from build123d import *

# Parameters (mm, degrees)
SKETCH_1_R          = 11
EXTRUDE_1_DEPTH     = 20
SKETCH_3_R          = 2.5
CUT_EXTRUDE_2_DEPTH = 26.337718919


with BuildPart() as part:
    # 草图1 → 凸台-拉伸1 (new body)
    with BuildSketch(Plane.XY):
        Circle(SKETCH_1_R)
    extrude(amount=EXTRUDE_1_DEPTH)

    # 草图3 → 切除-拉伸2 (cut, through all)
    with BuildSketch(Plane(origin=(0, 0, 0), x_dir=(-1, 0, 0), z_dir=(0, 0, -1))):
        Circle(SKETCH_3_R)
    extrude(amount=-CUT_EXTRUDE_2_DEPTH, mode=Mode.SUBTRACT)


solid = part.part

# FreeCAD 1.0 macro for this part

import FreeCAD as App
import Part
import Sketcher

V = App.Vector
Q = App.Units.Quantity

doc = App.newDocument("Part")
body = doc.addObject("PartDesign::Body", "Body")

# Sketch on XY plane
sketch1 = doc.addObject("Sketcher::SketchObject", "Sketch")
body.addObject(sketch1)
sketch1.AttachmentSupport = (doc.XY_Plane, [""])
sketch1.MapMode = "FlatFace"
sketch1.addGeometry(Part.Circle(V(0, 0, 0), V(0, 0, 1), 11), False)
sketch1.addConstraint([
    Sketcher.Constraint("Coincident", 0, 3, -1, 1),
    Sketcher.Constraint("Diameter", 0, Q("22 mm")),
])
pad1 = doc.addObject("PartDesign::Pad", "Pad")
body.addObject(pad1)
pad1.Profile = sketch1
pad1.Length = 20

# Sketch on XY plane
sketch2 = doc.addObject("Sketcher::SketchObject", "Sketch001")
body.addObject(sketch2)
sketch2.AttachmentSupport = (doc.XY_Plane, [""])
sketch2.MapMode = "FlatFace"
sketch2.addGeometry(Part.Circle(V(0, 0, 0), V(0, 0, 1), 2.5), False)
sketch2.addConstraint([
    Sketcher.Constraint("Coincident", 0, 3, -1, 1),
    Sketcher.Constraint("Diameter", 0, Q("5 mm")),
])
pocket1 = doc.addObject("PartDesign::Pocket", "Pocket")
body.addObject(pocket1)
pocket1.Profile = sketch2
pocket1.Type = "ThroughAll"
pocket1.Reversed = True

doc.recompute()
